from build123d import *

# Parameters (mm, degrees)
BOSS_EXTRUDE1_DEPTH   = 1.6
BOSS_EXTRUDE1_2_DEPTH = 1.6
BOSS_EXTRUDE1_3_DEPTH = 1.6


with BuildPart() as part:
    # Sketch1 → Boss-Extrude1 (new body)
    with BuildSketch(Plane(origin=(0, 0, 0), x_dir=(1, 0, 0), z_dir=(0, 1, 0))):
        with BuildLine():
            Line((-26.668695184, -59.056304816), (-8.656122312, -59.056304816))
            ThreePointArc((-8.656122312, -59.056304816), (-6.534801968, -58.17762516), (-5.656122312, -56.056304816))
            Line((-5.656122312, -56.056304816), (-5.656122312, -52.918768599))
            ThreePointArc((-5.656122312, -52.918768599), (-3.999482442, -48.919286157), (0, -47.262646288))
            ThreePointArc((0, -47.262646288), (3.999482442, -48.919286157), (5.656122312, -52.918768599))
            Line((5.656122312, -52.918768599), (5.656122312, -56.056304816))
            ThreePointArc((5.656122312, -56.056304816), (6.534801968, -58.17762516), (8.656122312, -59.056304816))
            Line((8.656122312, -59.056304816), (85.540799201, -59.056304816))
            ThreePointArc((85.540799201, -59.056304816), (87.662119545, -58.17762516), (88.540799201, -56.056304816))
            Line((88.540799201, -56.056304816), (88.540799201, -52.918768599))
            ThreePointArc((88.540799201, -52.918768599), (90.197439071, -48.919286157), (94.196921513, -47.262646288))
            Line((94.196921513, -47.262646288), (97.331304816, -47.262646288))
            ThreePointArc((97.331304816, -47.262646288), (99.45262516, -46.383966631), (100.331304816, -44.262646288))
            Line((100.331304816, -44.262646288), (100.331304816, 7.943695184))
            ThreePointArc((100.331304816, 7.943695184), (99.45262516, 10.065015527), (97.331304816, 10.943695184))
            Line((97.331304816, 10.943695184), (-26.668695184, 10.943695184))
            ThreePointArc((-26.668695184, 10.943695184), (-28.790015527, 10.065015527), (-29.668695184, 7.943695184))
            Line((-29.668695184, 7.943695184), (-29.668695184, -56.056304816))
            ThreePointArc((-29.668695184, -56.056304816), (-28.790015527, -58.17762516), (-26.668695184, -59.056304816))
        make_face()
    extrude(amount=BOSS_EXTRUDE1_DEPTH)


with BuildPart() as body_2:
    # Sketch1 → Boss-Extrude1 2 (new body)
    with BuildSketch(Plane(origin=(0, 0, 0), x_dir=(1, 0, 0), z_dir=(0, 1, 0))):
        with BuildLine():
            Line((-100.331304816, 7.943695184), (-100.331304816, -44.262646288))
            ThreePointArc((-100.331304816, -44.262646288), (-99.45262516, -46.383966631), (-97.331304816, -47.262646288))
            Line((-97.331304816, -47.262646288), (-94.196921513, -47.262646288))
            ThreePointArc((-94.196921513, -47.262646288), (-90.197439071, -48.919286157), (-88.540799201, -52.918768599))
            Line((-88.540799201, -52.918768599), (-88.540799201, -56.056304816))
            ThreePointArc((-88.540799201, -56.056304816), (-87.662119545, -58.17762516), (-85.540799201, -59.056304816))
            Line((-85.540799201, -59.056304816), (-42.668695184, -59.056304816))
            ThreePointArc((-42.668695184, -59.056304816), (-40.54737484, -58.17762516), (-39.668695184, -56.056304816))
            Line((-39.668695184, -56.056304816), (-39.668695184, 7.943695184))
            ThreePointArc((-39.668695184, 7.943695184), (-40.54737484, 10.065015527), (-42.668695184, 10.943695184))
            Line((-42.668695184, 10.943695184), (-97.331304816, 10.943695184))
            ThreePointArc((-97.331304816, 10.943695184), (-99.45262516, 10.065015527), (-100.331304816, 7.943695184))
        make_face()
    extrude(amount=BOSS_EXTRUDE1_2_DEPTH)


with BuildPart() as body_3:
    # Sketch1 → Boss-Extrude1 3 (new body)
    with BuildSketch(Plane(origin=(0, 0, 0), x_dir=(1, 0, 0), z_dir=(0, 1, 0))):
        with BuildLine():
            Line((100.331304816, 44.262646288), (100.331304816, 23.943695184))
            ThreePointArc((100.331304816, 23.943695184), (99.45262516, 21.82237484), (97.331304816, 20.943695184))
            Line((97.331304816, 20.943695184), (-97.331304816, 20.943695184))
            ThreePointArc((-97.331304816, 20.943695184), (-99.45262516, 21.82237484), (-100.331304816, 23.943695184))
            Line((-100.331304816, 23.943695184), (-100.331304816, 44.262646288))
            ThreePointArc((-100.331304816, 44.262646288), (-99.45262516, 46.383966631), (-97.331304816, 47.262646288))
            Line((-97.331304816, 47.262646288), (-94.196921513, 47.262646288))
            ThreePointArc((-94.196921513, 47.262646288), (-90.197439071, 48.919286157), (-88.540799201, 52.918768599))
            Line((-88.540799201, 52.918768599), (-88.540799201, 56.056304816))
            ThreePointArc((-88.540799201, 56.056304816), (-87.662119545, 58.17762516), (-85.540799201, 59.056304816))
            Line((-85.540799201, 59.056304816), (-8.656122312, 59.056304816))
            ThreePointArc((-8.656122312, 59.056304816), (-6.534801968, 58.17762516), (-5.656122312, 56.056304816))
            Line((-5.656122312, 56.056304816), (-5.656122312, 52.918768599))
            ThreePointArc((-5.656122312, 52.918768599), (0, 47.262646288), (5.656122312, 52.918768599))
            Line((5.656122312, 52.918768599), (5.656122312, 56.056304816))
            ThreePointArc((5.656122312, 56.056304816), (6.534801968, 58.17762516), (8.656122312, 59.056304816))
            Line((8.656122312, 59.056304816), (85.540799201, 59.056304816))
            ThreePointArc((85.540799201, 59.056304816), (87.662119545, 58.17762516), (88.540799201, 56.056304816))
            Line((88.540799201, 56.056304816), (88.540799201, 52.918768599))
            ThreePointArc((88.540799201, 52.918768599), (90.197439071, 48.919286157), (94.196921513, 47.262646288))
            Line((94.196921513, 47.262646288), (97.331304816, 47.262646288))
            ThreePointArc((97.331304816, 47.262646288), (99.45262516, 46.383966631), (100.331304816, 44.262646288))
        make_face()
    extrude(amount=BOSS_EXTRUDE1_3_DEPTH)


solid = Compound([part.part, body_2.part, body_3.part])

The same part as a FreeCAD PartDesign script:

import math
import FreeCAD as App
import Part
import Sketcher
Q = App.Units.Quantity

doc = App.newDocument("Part")
body = doc.addObject("PartDesign::Body", "Body")

# Sketch on XZ plane
sketch1 = body.newObject("Sketcher::SketchObject", "Sketch")
sketch1.AttachmentSupport = (doc.getObject("XZ_Plane"), [""])
sketch1.MapMode = "FlatFace"
sketch1.addGeometry(Part.LineSegment(App.Vector(-26.7, 59.1, 0), App.Vector(-8.7, 59.1, 0)), False)
sketch1.addGeometry(Part.ArcOfCircle(Part.Circle(App.Vector(-8.7, 56.1, 0), App.Vector(0, 0, 1), 3), math.radians(0), math.radians(90)), False)
sketch1.addGeometry(Part.LineSegment(App.Vector(-5.7, 56.1, 0), App.Vector(-5.7, 52.9, 0)), False)
sketch1.addGeometry(Part.ArcOfCircle(Part.Circle(App.Vector(0, 52.9, 0), App.Vector(0, 0, 1), 5.7), math.radians(180), math.radians(270)), False)
sketch1.addGeometry(Part.ArcOfCircle(Part.Circle(App.Vector(0, 52.9, 0), App.Vector(0, 0, 1), 5.7), math.radians(-90), math.radians(0)), False)
sketch1.addGeometry(Part.LineSegment(App.Vector(5.7, 52.9, 0), App.Vector(5.7, 56.1, 0)), False)
sketch1.addGeometry(Part.ArcOfCircle(Part.Circle(App.Vector(8.7, 56.1, 0), App.Vector(0, 0, 1), 3), math.radians(90), math.radians(180)), False)
sketch1.addGeometry(Part.LineSegment(App.Vector(8.7, 59.1, 0), App.Vector(85.5, 59.1, 0)), False)
sketch1.addGeometry(Part.ArcOfCircle(Part.Circle(App.Vector(85.5, 56.1, 0), App.Vector(0, 0, 1), 3), math.radians(0), math.radians(90)), False)
sketch1.addGeometry(Part.LineSegment(App.Vector(88.5, 56.1, 0), App.Vector(88.5, 52.9, 0)), False)
sketch1.addGeometry(Part.ArcOfCircle(Part.Circle(App.Vector(94.2, 52.9, 0), App.Vector(0, 0, 1), 5.7), math.radians(180), math.radians(270)), False)
sketch1.addGeometry(Part.LineSegment(App.Vector(94.2, 47.3, 0), App.Vector(97.3, 47.3, 0)), False)
sketch1.addGeometry(Part.ArcOfCircle(Part.Circle(App.Vector(97.3, 44.3, 0), App.Vector(0, 0, 1), 3), math.radians(0), math.radians(90)), False)
sketch1.addGeometry(Part.LineSegment(App.Vector(100.3, 44.3, 0), App.Vector(100.3, -7.9, 0)), False)
sketch1.addGeometry(Part.ArcOfCircle(Part.Circle(App.Vector(97.3, -7.9, 0), App.Vector(0, 0, 1), 3), math.radians(-90), math.radians(0)), False)
sketch1.addGeometry(Part.LineSegment(App.Vector(97.3, -10.9, 0), App.Vector(-26.7, -10.9, 0)), False)
sketch1.addGeometry(Part.ArcOfCircle(Part.Circle(App.Vector(-26.7, -7.9, 0), App.Vector(0, 0, 1), 3), math.radians(-180), math.radians(-90)), False)
sketch1.addGeometry(Part.LineSegment(App.Vector(-29.7, -7.9, 0), App.Vector(-29.7, 56.1, 0)), False)
sketch1.addGeometry(Part.ArcOfCircle(Part.Circle(App.Vector(-26.7, 56.1, 0), App.Vector(0, 0, 1), 3), math.radians(90), math.radians(180)), False)
sketch1.addConstraint(Sketcher.Constraint("Tangent", 0, 2, 1, 2))
sketch1.addConstraint(Sketcher.Constraint("Tangent", 1, 1, 2, 1))
sketch1.addConstraint(Sketcher.Constraint("Tangent", 2, 2, 3, 1))
sketch1.addConstraint(Sketcher.Constraint("Tangent", 3, 2, 4, 1))
sketch1.addConstraint(Sketcher.Constraint("Tangent", 4, 2, 5, 1))
sketch1.addConstraint(Sketcher.Constraint("Tangent", 5, 2, 6, 2))
sketch1.addConstraint(Sketcher.Constraint("Tangent", 6, 1, 7, 1))
sketch1.addConstraint(Sketcher.Constraint("Tangent", 7, 2, 8, 2))
sketch1.addConstraint(Sketcher.Constraint("Tangent", 8, 1, 9, 1))
sketch1.addConstraint(Sketcher.Constraint("Tangent", 9, 2, 10, 1))
sketch1.addConstraint(Sketcher.Constraint("Tangent", 10, 2, 11, 1))
sketch1.addConstraint(Sketcher.Constraint("Tangent", 11, 2, 12, 2))
sketch1.addConstraint(Sketcher.Constraint("Tangent", 12, 1, 13, 1))
sketch1.addConstraint(Sketcher.Constraint("Tangent", 13, 2, 14, 2))
sketch1.addConstraint(Sketcher.Constraint("Tangent", 14, 1, 15, 1))
sketch1.addConstraint(Sketcher.Constraint("Tangent", 15, 2, 16, 2))
sketch1.addConstraint(Sketcher.Constraint("Tangent", 16, 1, 17, 1))
sketch1.addConstraint(Sketcher.Constraint("Tangent", 17, 2, 18, 2))
sketch1.addConstraint(Sketcher.Constraint("Tangent", 18, 1, 0, 1))
sketch1.addConstraint(Sketcher.Constraint("Horizontal", 0))
sketch1.addConstraint(Sketcher.Constraint("Vertical", 2))
sketch1.addConstraint(Sketcher.Constraint("Vertical", 5))
sketch1.addConstraint(Sketcher.Constraint("Horizontal", 7))
sketch1.addConstraint(Sketcher.Constraint("Vertical", 9))
sketch1.addConstraint(Sketcher.Constraint("Horizontal", 11))
sketch1.addConstraint(Sketcher.Constraint("Vertical", 13))
sketch1.addConstraint(Sketcher.Constraint("Horizontal", 15))
sketch1.addConstraint(Sketcher.Constraint("Vertical", 17))
sketch1.addConstraint(Sketcher.Constraint("Equal", 3, 4))
sketch1.addConstraint(Sketcher.Constraint("Equal", 1, 6))
sketch1.addConstraint(Sketcher.Constraint("Equal", 6, 8))
sketch1.addConstraint(Sketcher.Constraint("Equal", 4, 10))
sketch1.addConstraint(Sketcher.Constraint("Equal", 8, 12))
sketch1.addConstraint(Sketcher.Constraint("Equal", 12, 14))
sketch1.addConstraint(Sketcher.Constraint("Equal", 14, 16))
sketch1.addConstraint(Sketcher.Constraint("Equal", 16, 18))
sketch1.addConstraint(Sketcher.Constraint("Symmetric", 1, 3, 6, 3, -2))
sketch1.addConstraint(Sketcher.Constraint("PointOnObject", 3, 2, -2))
sketch1.addConstraint(Sketcher.Constraint("Horizontal", 4, 3, 10, 3))
sketch1.addConstraint(Sketcher.Constraint("Radius", 1, Q("3 mm")))
sketch1.addConstraint(Sketcher.Constraint("DistanceX", 15, 2, 15, 1, Q("124 mm")))
sketch1.addConstraint(Sketcher.Constraint("DistanceY", 17, 1, 17, 2, Q("64 mm")))
sketch1.addConstraint(Sketcher.Constraint("Radius", 3, Q("5.656122 mm")))
sketch1.addConstraint(Sketcher.Constraint("DistanceY", 13, 2, 13, 1, Q("52.206341 mm")))
sketch1.addConstraint(Sketcher.Constraint("DistanceX", -1, 1, 8, 3, Q("85.540799 mm")))
sketch1.addConstraint(Sketcher.Constraint("DistanceX", 0, 1, 0, 2, Q("18.012573 mm")))
sketch1.addConstraint(Sketcher.Constraint("DistanceY", -1, 1, 3, 3, Q("52.918769 mm")))
pad1 = body.newObject("PartDesign::Pad", "Pad")
pad1.Profile = sketch1
pad1.Length = 1.6
pad1.Reversed = True
body2 = doc.addObject("PartDesign::Body", "Body001")

# Sketch on XZ plane
sketch2 = body2.newObject("Sketcher::SketchObject", "Sketch001")
sketch2.AttachmentSupport = (doc.getObject("XZ_Plane001"), [""])
sketch2.MapMode = "FlatFace"
sketch2.addGeometry(Part.LineSegment(App.Vector(-100.3, -7.9, 0), App.Vector(-100.3, 44.3, 0)), False)
sketch2.addGeometry(Part.ArcOfCircle(Part.Circle(App.Vector(-97.3, 44.3, 0), App.Vector(0, 0, 1), 3), math.radians(90), math.radians(180)), False)
sketch2.addGeometry(Part.LineSegment(App.Vector(-97.3, 47.3, 0), App.Vector(-94.2, 47.3, 0)), False)
sketch2.addGeometry(Part.ArcOfCircle(Part.Circle(App.Vector(-94.2, 52.9, 0), App.Vector(0, 0, 1), 5.7), math.radians(-90), math.radians(0)), False)
sketch2.addGeometry(Part.LineSegment(App.Vector(-88.5, 52.9, 0), App.Vector(-88.5, 56.1, 0)), False)
sketch2.addGeometry(Part.ArcOfCircle(Part.Circle(App.Vector(-85.5, 56.1, 0), App.Vector(0, 0, 1), 3), math.radians(90), math.radians(180)), False)
sketch2.addGeometry(Part.LineSegment(App.Vector(-85.5, 59.1, 0), App.Vector(-42.7, 59.1, 0)), False)
sketch2.addGeometry(Part.ArcOfCircle(Part.Circle(App.Vector(-42.7, 56.1, 0), App.Vector(0, 0, 1), 3), math.radians(0), math.radians(90)), False)
sketch2.addGeometry(Part.LineSegment(App.Vector(-39.7, 56.1, 0), App.Vector(-39.7, -7.9, 0)), False)
sketch2.addGeometry(Part.ArcOfCircle(Part.Circle(App.Vector(-42.7, -7.9, 0), App.Vector(0, 0, 1), 3), math.radians(-90), math.radians(0)), False)
sketch2.addGeometry(Part.LineSegment(App.Vector(-42.7, -10.9, 0), App.Vector(-97.3, -10.9, 0)), False)
sketch2.addGeometry(Part.ArcOfCircle(Part.Circle(App.Vector(-97.3, -7.9, 0), App.Vector(0, 0, 1), 3), math.radians(180), math.radians(270)), False)
sketch2.addConstraint(Sketcher.Constraint("Tangent", 0, 2, 1, 2))
sketch2.addConstraint(Sketcher.Constraint("Tangent", 1, 1, 2, 1))
sketch2.addConstraint(Sketcher.Constraint("Tangent", 2, 2, 3, 1))
sketch2.addConstraint(Sketcher.Constraint("Tangent", 3, 2, 4, 1))
sketch2.addConstraint(Sketcher.Constraint("Tangent", 4, 2, 5, 2))
sketch2.addConstraint(Sketcher.Constraint("Tangent", 5, 1, 6, 1))
sketch2.addConstraint(Sketcher.Constraint("Tangent", 6, 2, 7, 2))
sketch2.addConstraint(Sketcher.Constraint("Tangent", 7, 1, 8, 1))
sketch2.addConstraint(Sketcher.Constraint("Tangent", 8, 2, 9, 2))
sketch2.addConstraint(Sketcher.Constraint("Tangent", 9, 1, 10, 1))
sketch2.addConstraint(Sketcher.Constraint("Tangent", 10, 2, 11, 2))
sketch2.addConstraint(Sketcher.Constraint("Tangent", 11, 1, 0, 1))
sketch2.addConstraint(Sketcher.Constraint("Vertical", 0))
sketch2.addConstraint(Sketcher.Constraint("Horizontal", 2))
sketch2.addConstraint(Sketcher.Constraint("Vertical", 4))
sketch2.addConstraint(Sketcher.Constraint("Horizontal", 6))
sketch2.addConstraint(Sketcher.Constraint("Vertical", 8))
sketch2.addConstraint(Sketcher.Constraint("Horizontal", 10))
sketch2.addConstraint(Sketcher.Constraint("Equal", 1, 5))
sketch2.addConstraint(Sketcher.Constraint("Equal", 5, 7))
sketch2.addConstraint(Sketcher.Constraint("Equal", 7, 9))
sketch2.addConstraint(Sketcher.Constraint("Equal", 9, 11))
sketch2.addConstraint(Sketcher.Constraint("Radius", 1, Q("3 mm")))
sketch2.addConstraint(Sketcher.Constraint("DistanceY", 8, 2, 8, 1, Q("64 mm")))
sketch2.addConstraint(Sketcher.Constraint("Radius", 3, Q("5.656122 mm")))
sketch2.addConstraint(Sketcher.Constraint("DistanceX", 10, 2, 10, 1, Q("54.66261 mm")))
sketch2.addConstraint(Sketcher.Constraint("DistanceY", 0, 1, 0, 2, Q("52.206341 mm")))
sketch2.addConstraint(Sketcher.Constraint("DistanceX", 5, 3, -1, 1, Q("85.540799 mm")))
sketch2.addConstraint(Sketcher.Constraint("DistanceX", 2, 1, 2, 2, Q("3.134383 mm")))
sketch2.addConstraint(Sketcher.Constraint("DistanceY", -1, 1, 3, 3, Q("52.918769 mm")))
pad2 = body2.newObject("PartDesign::Pad", "Pad001")
pad2.Profile = sketch2
pad2.Length = 1.6
pad2.Reversed = True
body3 = doc.addObject("PartDesign::Body", "Body002")

# Sketch on XZ plane
sketch3 = body3.newObject("Sketcher::SketchObject", "Sketch002")
sketch3.AttachmentSupport = (doc.getObject("XZ_Plane002"), [""])
sketch3.MapMode = "FlatFace"
sketch3.addGeometry(Part.LineSegment(App.Vector(100.3, -23.9, 0), App.Vector(100.3, -44.3, 0)), False)
sketch3.addGeometry(Part.ArcOfCircle(Part.Circle(App.Vector(97.3, -44.3, 0), App.Vector(0, 0, 1), 3), math.radians(-90), math.radians(0)), False)
sketch3.addGeometry(Part.LineSegment(App.Vector(97.3, -47.3, 0), App.Vector(94.2, -47.3, 0)), False)
sketch3.addGeometry(Part.ArcOfCircle(Part.Circle(App.Vector(94.2, -52.9, 0), App.Vector(0, 0, 1), 5.7), math.radians(90), math.radians(180)), False)
sketch3.addGeometry(Part.LineSegment(App.Vector(88.5, -52.9, 0), App.Vector(88.5, -56.1, 0)), False)
sketch3.addGeometry(Part.ArcOfCircle(Part.Circle(App.Vector(85.5, -56.1, 0), App.Vector(0, 0, 1), 3), math.radians(-90), math.radians(0)), False)
sketch3.addGeometry(Part.LineSegment(App.Vector(85.5, -59.1, 0), App.Vector(8.7, -59.1, 0)), False)
sketch3.addGeometry(Part.ArcOfCircle(Part.Circle(App.Vector(8.7, -56.1, 0), App.Vector(0, 0, 1), 3), math.radians(180), math.radians(270)), False)
sketch3.addGeometry(Part.LineSegment(App.Vector(5.7, -56.1, 0), App.Vector(5.7, -52.9, 0)), False)
sketch3.addGeometry(Part.ArcOfCircle(Part.Circle(App.Vector(0, -52.9, 0), App.Vector(0, 0, 1), 5.7), math.radians(0), math.radians(180)), False)
sketch3.addGeometry(Part.LineSegment(App.Vector(-5.7, -52.9, 0), App.Vector(-5.7, -56.1, 0)), False)
sketch3.addGeometry(Part.ArcOfCircle(Part.Circle(App.Vector(-8.7, -56.1, 0), App.Vector(0, 0, 1), 3), math.radians(-90), math.radians(0)), False)
sketch3.addGeometry(Part.LineSegment(App.Vector(-8.7, -59.1, 0), App.Vector(-85.5, -59.1, 0)), False)
sketch3.addGeometry(Part.ArcOfCircle(Part.Circle(App.Vector(-85.5, -56.1, 0), App.Vector(0, 0, 1), 3), math.radians(180), math.radians(270)), False)
sketch3.addGeometry(Part.LineSegment(App.Vector(-88.5, -56.1, 0), App.Vector(-88.5, -52.9, 0)), False)
sketch3.addGeometry(Part.ArcOfCircle(Part.Circle(App.Vector(-94.2, -52.9, 0), App.Vector(0, 0, 1), 5.7), math.radians(0), math.radians(90)), False)
sketch3.addGeometry(Part.LineSegment(App.Vector(-94.2, -47.3, 0), App.Vector(-97.3, -47.3, 0)), False)
sketch3.addGeometry(Part.ArcOfCircle(Part.Circle(App.Vector(-97.3, -44.3, 0), App.Vector(0, 0, 1), 3), math.radians(180), math.radians(270)), False)
sketch3.addGeometry(Part.LineSegment(App.Vector(-100.3, -44.3, 0), App.Vector(-100.3, -23.9, 0)), False)
sketch3.addGeometry(Part.ArcOfCircle(Part.Circle(App.Vector(-97.3, -23.9, 0), App.Vector(0, 0, 1), 3), math.radians(90), math.radians(180)), False)
sketch3.addGeometry(Part.LineSegment(App.Vector(-97.3, -20.9, 0), App.Vector(97.3, -20.9, 0)), False)
sketch3.addGeometry(Part.ArcOfCircle(Part.Circle(App.Vector(97.3, -23.9, 0), App.Vector(0, 0, 1), 3), math.radians(0), math.radians(90)), False)
sketch3.addConstraint(Sketcher.Constraint("Tangent", 0, 2, 1, 2))
sketch3.addConstraint(Sketcher.Constraint("Tangent", 1, 1, 2, 1))
sketch3.addConstraint(Sketcher.Constraint("Tangent", 2, 2, 3, 1))
sketch3.addConstraint(Sketcher.Constraint("Tangent", 3, 2, 4, 1))
sketch3.addConstraint(Sketcher.Constraint("Tangent", 4, 2, 5, 2))
sketch3.addConstraint(Sketcher.Constraint("Tangent", 5, 1, 6, 1))
sketch3.addConstraint(Sketcher.Constraint("Tangent", 6, 2, 7, 2))
sketch3.addConstraint(Sketcher.Constraint("Tangent", 7, 1, 8, 1))
sketch3.addConstraint(Sketcher.Constraint("Tangent", 8, 2, 9, 1))
sketch3.addConstraint(Sketcher.Constraint("Tangent", 9, 2, 10, 1))
sketch3.addConstraint(Sketcher.Constraint("Tangent", 10, 2, 11, 2))
sketch3.addConstraint(Sketcher.Constraint("Tangent", 11, 1, 12, 1))
sketch3.addConstraint(Sketcher.Constraint("Tangent", 12, 2, 13, 2))
sketch3.addConstraint(Sketcher.Constraint("Tangent", 13, 1, 14, 1))
sketch3.addConstraint(Sketcher.Constraint("Tangent", 14, 2, 15, 1))
sketch3.addConstraint(Sketcher.Constraint("Tangent", 15, 2, 16, 1))
sketch3.addConstraint(Sketcher.Constraint("Tangent", 16, 2, 17, 2))
sketch3.addConstraint(Sketcher.Constraint("Tangent", 17, 1, 18, 1))
sketch3.addConstraint(Sketcher.Constraint("Tangent", 18, 2, 19, 2))
sketch3.addConstraint(Sketcher.Constraint("Tangent", 19, 1, 20, 1))
sketch3.addConstraint(Sketcher.Constraint("Tangent", 20, 2, 21, 2))
sketch3.addConstraint(Sketcher.Constraint("Tangent", 21, 1, 0, 1))
sketch3.addConstraint(Sketcher.Constraint("Vertical", 0))
sketch3.addConstraint(Sketcher.Constraint("Horizontal", 2))
sketch3.addConstraint(Sketcher.Constraint("Vertical", 4))
sketch3.addConstraint(Sketcher.Constraint("Horizontal", 6))
sketch3.addConstraint(Sketcher.Constraint("Vertical", 8))
sketch3.addConstraint(Sketcher.Constraint("Vertical", 10))
sketch3.addConstraint(Sketcher.Constraint("Horizontal", 12))
sketch3.addConstraint(Sketcher.Constraint("Vertical", 14))
sketch3.addConstraint(Sketcher.Constraint("Horizontal", 16))
sketch3.addConstraint(Sketcher.Constraint("Vertical", 18))
sketch3.addConstraint(Sketcher.Constraint("Horizontal", 20))
sketch3.addConstraint(Sketcher.Constraint("Equal", 1, 5))
sketch3.addConstraint(Sketcher.Constraint("Equal", 5, 7))
sketch3.addConstraint(Sketcher.Constraint("Equal", 3, 9))
sketch3.addConstraint(Sketcher.Constraint("Equal", 7, 11))
sketch3.addConstraint(Sketcher.Constraint("Equal", 11, 13))
sketch3.addConstraint(Sketcher.Constraint("Equal", 9, 15))
sketch3.addConstraint(Sketcher.Constraint("Equal", 13, 17))
sketch3.addConstraint(Sketcher.Constraint("Equal", 17, 19))
sketch3.addConstraint(Sketcher.Constraint("Equal", 19, 21))
sketch3.addConstraint(Sketcher.Constraint("Symmetric", 7, 3, 11, 3, -2))
sketch3.addConstraint(Sketcher.Constraint("Symmetric", 3, 3, 15, 3, -2))
sketch3.addConstraint(Sketcher.Constraint("Horizontal", 3, 3, 9, 3))
sketch3.addConstraint(Sketcher.Constraint("Equal", 2, 16))
sketch3.addConstraint(Sketcher.Constraint("Radius", 1, Q("3 mm")))
sketch3.addConstraint(Sketcher.Constraint("Radius", 3, Q("5.656122 mm")))
sketch3.addConstraint(Sketcher.Constraint("DistanceX", 20, 1, 20, 2, Q("194.66261 mm")))
sketch3.addConstraint(Sketcher.Constraint("DistanceY", 0, 2, 0, 1, Q("20.318951 mm")))
sketch3.addConstraint(Sketcher.Constraint("DistanceX", -1, 1, 5, 3, Q("85.540799 mm")))
sketch3.addConstraint(Sketcher.Constraint("DistanceY", 4, 2, 4, 1, Q("3.137536 mm")))
sketch3.addConstraint(Sketcher.Constraint("DistanceY", 3, 3, -1, 1, Q("52.918769 mm")))
pad3 = body3.newObject("PartDesign::Pad", "Pad002")
pad3.Profile = sketch3
pad3.Length = 1.6
pad3.Reversed = True

doc.recompute()
